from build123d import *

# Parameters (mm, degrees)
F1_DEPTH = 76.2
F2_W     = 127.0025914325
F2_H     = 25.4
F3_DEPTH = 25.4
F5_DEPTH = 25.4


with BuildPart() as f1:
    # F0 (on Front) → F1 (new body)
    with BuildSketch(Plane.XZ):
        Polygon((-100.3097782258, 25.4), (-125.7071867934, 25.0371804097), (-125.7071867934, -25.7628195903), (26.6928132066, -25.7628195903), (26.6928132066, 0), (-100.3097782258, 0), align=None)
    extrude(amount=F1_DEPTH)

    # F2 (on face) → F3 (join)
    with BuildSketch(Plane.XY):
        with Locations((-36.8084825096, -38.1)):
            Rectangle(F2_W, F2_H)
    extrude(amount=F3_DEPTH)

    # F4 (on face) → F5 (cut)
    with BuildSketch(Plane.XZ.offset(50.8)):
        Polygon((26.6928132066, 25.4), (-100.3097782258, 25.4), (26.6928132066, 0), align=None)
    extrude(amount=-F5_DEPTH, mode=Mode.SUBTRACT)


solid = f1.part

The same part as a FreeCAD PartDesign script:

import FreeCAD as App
import Part
import Sketcher

V = App.Vector
Q = App.Units.Quantity

doc = App.newDocument("Part")
body = doc.addObject("PartDesign::Body", "Body")

sketch1 = doc.addObject("Sketcher::SketchObject", "Sketch")
body.addObject(sketch1)
sketch1.AttachmentSupport = (doc.XZ_Plane, [""])
sketch1.MapMode = "FlatFace"
sketch1.addGeometry(Part.LineSegment(V(-100.309778, 25.4, 0), V(-125.707187, 25.03718, 0)), False)
sketch1.addGeometry(Part.LineSegment(V(-125.707187, 25.03718, 0), V(-125.707187, -25.76282, 0)), False)
sketch1.addGeometry(Part.LineSegment(V(-125.707187, -25.76282, 0), V(26.692813, -25.76282, 0)), False)
sketch1.addGeometry(Part.LineSegment(V(26.692813, -25.76282, 0), V(26.692813, 0, 0)), False)
sketch1.addGeometry(Part.LineSegment(V(26.692813, 0, 0), V(-100.309778, 0, 0)), False)
sketch1.addGeometry(Part.LineSegment(V(-100.309778, 0, 0), V(-100.309778, 25.4, 0)), False)
sketch1.addConstraint(Sketcher.Constraint("Coincident", 0, 2, 1, 1))
sketch1.addConstraint(Sketcher.Constraint("Coincident", 1, 2, 2, 1))
sketch1.addConstraint(Sketcher.Constraint("Coincident", 2, 2, 3, 1))
sketch1.addConstraint(Sketcher.Constraint("Coincident", 3, 2, 4, 1))
sketch1.addConstraint(Sketcher.Constraint("Coincident", 4, 2, 5, 1))
sketch1.addConstraint(Sketcher.Constraint("Coincident", 5, 2, 0, 1))
sketch1.addConstraint(Sketcher.Constraint("Vertical", 1))
sketch1.addConstraint(Sketcher.Constraint("Horizontal", 2))
sketch1.addConstraint(Sketcher.Constraint("Vertical", 3))
sketch1.addConstraint(Sketcher.Constraint("Horizontal", 4))
sketch1.addConstraint(Sketcher.Constraint("Vertical", 5))
sketch1.addConstraint(Sketcher.Constraint("PointOnObject", 3, 2, -1))
sketch1.addConstraint(Sketcher.Constraint("DistanceX", 2, 1, 2, 2, Q("6 in")))
sketch1.addConstraint(Sketcher.Constraint("DistanceY", 1, 2, 1, 1, Q("2 in")))
sketch1.addConstraint(Sketcher.Constraint("DistanceY", 5, 1, 5, 2, Q("1 in")))
sketch1.addConstraint(Sketcher.Constraint("Distance", 0, Q("1 in")))
sketch1.addConstraint(Sketcher.Constraint("DistanceX", 4, 2, 4, 1, Q("127.002591 mm")))
sketch1.addConstraint(Sketcher.Constraint("DistanceX", 4, 2, -1, 1, Q("100.309778 mm")))
pad1 = doc.addObject("PartDesign::Pad", "Pad")
body.addObject(pad1)
pad1.Profile = sketch1
pad1.Length = Q("3 in")

sketch2 = doc.addObject("Sketcher::SketchObject", "Sketch001")
body.addObject(sketch2)
sketch2.AttachmentSupport = (doc.XY_Plane, [""])
sketch2.MapMode = "FlatFace"
sketch2.addGeometry(Part.LineSegment(V(-100, -25, 0), V(-100, -51, 0)), False)
sketch2.addGeometry(Part.LineSegment(V(-100, -51, 0), V(27, -51, 0)), False)
sketch2.addGeometry(Part.LineSegment(V(27, -51, 0), V(27, -25, 0)), False)
sketch2.addGeometry(Part.LineSegment(V(27, -25, 0), V(-100, -25, 0)), False)
sketch2.addConstraint(Sketcher.Constraint("Coincident", 0, 2, 1, 1))
sketch2.addConstraint(Sketcher.Constraint("Coincident", 1, 2, 2, 1))
sketch2.addConstraint(Sketcher.Constraint("Coincident", 2, 2, 3, 1))
sketch2.addConstraint(Sketcher.Constraint("Coincident", 3, 2, 0, 1))
sketch2.addConstraint(Sketcher.Constraint("Vertical", 0))
sketch2.addConstraint(Sketcher.Constraint("Horizontal", 1))
sketch2.addConstraint(Sketcher.Constraint("Vertical", 2))
sketch2.addConstraint(Sketcher.Constraint("Horizontal", 3))
sketch2.addConstraint(Sketcher.Constraint("DistanceY", 0, 2, 0, 1, Q("1 in")))
sketch2.addConstraint(Sketcher.Constraint("DistanceY", 0, 2, -1, 1, Q("2 in")))
sketch2.addConstraint(Sketcher.Constraint("DistanceX", 1, 1, 1, 2, Q("127.002591 mm")))
sketch2.addConstraint(Sketcher.Constraint("DistanceX", 0, 2, -1, 1, Q("100.309778 mm")))
pad2 = doc.addObject("PartDesign::Pad", "Pad001")
body.addObject(pad2)
pad2.Profile = sketch2
pad2.Length = Q("1 in")

sketch3 = doc.addObject("Sketcher::SketchObject", "Sketch002")
body.addObject(sketch3)
sketch3.AttachmentSupport = (doc.XZ_Plane, [""])
sketch3.MapMode = "FlatFace"
sketch3.AttachmentOffset = App.Placement(V(0, 0, 2 * 25.4), App.Rotation())
sketch3.addGeometry(Part.LineSegment(V(27, 25, 0), V(-100, 25, 0)), False)
sketch3.addGeometry(Part.LineSegment(V(-100, 25, 0), V(27, 0, 0)), False)
sketch3.addGeometry(Part.LineSegment(V(27, 0, 0), V(27, 25, 0)), False)
sketch3.addConstraint(Sketcher.Constraint("Coincident", 0, 2, 1, 1))
sketch3.addConstraint(Sketcher.Constraint("Coincident", 1, 2, 2, 1))
sketch3.addConstraint(Sketcher.Constraint("Coincident", 2, 2, 0, 1))
sketch3.addConstraint(Sketcher.Constraint("Horizontal", 0))
sketch3.addConstraint(Sketcher.Constraint("Vertical", 2))
sketch3.addConstraint(Sketcher.Constraint("PointOnObject", 1, 2, -1))
sketch3.addConstraint(Sketcher.Constraint("DistanceY", 2, 1, 2, 2, Q("1 in")))
sketch3.addConstraint(Sketcher.Constraint("DistanceX", 0, 2, 0, 1, Q("127.002591 mm")))
sketch3.addConstraint(Sketcher.Constraint("DistanceX", 0, 2, -1, 1, Q("100.309778 mm")))
pocket1 = doc.addObject("PartDesign::Pocket", "Pocket")
body.addObject(pocket1)
pocket1.Profile = sketch3
pocket1.Length = Q("1 in")

doc.recompute()
